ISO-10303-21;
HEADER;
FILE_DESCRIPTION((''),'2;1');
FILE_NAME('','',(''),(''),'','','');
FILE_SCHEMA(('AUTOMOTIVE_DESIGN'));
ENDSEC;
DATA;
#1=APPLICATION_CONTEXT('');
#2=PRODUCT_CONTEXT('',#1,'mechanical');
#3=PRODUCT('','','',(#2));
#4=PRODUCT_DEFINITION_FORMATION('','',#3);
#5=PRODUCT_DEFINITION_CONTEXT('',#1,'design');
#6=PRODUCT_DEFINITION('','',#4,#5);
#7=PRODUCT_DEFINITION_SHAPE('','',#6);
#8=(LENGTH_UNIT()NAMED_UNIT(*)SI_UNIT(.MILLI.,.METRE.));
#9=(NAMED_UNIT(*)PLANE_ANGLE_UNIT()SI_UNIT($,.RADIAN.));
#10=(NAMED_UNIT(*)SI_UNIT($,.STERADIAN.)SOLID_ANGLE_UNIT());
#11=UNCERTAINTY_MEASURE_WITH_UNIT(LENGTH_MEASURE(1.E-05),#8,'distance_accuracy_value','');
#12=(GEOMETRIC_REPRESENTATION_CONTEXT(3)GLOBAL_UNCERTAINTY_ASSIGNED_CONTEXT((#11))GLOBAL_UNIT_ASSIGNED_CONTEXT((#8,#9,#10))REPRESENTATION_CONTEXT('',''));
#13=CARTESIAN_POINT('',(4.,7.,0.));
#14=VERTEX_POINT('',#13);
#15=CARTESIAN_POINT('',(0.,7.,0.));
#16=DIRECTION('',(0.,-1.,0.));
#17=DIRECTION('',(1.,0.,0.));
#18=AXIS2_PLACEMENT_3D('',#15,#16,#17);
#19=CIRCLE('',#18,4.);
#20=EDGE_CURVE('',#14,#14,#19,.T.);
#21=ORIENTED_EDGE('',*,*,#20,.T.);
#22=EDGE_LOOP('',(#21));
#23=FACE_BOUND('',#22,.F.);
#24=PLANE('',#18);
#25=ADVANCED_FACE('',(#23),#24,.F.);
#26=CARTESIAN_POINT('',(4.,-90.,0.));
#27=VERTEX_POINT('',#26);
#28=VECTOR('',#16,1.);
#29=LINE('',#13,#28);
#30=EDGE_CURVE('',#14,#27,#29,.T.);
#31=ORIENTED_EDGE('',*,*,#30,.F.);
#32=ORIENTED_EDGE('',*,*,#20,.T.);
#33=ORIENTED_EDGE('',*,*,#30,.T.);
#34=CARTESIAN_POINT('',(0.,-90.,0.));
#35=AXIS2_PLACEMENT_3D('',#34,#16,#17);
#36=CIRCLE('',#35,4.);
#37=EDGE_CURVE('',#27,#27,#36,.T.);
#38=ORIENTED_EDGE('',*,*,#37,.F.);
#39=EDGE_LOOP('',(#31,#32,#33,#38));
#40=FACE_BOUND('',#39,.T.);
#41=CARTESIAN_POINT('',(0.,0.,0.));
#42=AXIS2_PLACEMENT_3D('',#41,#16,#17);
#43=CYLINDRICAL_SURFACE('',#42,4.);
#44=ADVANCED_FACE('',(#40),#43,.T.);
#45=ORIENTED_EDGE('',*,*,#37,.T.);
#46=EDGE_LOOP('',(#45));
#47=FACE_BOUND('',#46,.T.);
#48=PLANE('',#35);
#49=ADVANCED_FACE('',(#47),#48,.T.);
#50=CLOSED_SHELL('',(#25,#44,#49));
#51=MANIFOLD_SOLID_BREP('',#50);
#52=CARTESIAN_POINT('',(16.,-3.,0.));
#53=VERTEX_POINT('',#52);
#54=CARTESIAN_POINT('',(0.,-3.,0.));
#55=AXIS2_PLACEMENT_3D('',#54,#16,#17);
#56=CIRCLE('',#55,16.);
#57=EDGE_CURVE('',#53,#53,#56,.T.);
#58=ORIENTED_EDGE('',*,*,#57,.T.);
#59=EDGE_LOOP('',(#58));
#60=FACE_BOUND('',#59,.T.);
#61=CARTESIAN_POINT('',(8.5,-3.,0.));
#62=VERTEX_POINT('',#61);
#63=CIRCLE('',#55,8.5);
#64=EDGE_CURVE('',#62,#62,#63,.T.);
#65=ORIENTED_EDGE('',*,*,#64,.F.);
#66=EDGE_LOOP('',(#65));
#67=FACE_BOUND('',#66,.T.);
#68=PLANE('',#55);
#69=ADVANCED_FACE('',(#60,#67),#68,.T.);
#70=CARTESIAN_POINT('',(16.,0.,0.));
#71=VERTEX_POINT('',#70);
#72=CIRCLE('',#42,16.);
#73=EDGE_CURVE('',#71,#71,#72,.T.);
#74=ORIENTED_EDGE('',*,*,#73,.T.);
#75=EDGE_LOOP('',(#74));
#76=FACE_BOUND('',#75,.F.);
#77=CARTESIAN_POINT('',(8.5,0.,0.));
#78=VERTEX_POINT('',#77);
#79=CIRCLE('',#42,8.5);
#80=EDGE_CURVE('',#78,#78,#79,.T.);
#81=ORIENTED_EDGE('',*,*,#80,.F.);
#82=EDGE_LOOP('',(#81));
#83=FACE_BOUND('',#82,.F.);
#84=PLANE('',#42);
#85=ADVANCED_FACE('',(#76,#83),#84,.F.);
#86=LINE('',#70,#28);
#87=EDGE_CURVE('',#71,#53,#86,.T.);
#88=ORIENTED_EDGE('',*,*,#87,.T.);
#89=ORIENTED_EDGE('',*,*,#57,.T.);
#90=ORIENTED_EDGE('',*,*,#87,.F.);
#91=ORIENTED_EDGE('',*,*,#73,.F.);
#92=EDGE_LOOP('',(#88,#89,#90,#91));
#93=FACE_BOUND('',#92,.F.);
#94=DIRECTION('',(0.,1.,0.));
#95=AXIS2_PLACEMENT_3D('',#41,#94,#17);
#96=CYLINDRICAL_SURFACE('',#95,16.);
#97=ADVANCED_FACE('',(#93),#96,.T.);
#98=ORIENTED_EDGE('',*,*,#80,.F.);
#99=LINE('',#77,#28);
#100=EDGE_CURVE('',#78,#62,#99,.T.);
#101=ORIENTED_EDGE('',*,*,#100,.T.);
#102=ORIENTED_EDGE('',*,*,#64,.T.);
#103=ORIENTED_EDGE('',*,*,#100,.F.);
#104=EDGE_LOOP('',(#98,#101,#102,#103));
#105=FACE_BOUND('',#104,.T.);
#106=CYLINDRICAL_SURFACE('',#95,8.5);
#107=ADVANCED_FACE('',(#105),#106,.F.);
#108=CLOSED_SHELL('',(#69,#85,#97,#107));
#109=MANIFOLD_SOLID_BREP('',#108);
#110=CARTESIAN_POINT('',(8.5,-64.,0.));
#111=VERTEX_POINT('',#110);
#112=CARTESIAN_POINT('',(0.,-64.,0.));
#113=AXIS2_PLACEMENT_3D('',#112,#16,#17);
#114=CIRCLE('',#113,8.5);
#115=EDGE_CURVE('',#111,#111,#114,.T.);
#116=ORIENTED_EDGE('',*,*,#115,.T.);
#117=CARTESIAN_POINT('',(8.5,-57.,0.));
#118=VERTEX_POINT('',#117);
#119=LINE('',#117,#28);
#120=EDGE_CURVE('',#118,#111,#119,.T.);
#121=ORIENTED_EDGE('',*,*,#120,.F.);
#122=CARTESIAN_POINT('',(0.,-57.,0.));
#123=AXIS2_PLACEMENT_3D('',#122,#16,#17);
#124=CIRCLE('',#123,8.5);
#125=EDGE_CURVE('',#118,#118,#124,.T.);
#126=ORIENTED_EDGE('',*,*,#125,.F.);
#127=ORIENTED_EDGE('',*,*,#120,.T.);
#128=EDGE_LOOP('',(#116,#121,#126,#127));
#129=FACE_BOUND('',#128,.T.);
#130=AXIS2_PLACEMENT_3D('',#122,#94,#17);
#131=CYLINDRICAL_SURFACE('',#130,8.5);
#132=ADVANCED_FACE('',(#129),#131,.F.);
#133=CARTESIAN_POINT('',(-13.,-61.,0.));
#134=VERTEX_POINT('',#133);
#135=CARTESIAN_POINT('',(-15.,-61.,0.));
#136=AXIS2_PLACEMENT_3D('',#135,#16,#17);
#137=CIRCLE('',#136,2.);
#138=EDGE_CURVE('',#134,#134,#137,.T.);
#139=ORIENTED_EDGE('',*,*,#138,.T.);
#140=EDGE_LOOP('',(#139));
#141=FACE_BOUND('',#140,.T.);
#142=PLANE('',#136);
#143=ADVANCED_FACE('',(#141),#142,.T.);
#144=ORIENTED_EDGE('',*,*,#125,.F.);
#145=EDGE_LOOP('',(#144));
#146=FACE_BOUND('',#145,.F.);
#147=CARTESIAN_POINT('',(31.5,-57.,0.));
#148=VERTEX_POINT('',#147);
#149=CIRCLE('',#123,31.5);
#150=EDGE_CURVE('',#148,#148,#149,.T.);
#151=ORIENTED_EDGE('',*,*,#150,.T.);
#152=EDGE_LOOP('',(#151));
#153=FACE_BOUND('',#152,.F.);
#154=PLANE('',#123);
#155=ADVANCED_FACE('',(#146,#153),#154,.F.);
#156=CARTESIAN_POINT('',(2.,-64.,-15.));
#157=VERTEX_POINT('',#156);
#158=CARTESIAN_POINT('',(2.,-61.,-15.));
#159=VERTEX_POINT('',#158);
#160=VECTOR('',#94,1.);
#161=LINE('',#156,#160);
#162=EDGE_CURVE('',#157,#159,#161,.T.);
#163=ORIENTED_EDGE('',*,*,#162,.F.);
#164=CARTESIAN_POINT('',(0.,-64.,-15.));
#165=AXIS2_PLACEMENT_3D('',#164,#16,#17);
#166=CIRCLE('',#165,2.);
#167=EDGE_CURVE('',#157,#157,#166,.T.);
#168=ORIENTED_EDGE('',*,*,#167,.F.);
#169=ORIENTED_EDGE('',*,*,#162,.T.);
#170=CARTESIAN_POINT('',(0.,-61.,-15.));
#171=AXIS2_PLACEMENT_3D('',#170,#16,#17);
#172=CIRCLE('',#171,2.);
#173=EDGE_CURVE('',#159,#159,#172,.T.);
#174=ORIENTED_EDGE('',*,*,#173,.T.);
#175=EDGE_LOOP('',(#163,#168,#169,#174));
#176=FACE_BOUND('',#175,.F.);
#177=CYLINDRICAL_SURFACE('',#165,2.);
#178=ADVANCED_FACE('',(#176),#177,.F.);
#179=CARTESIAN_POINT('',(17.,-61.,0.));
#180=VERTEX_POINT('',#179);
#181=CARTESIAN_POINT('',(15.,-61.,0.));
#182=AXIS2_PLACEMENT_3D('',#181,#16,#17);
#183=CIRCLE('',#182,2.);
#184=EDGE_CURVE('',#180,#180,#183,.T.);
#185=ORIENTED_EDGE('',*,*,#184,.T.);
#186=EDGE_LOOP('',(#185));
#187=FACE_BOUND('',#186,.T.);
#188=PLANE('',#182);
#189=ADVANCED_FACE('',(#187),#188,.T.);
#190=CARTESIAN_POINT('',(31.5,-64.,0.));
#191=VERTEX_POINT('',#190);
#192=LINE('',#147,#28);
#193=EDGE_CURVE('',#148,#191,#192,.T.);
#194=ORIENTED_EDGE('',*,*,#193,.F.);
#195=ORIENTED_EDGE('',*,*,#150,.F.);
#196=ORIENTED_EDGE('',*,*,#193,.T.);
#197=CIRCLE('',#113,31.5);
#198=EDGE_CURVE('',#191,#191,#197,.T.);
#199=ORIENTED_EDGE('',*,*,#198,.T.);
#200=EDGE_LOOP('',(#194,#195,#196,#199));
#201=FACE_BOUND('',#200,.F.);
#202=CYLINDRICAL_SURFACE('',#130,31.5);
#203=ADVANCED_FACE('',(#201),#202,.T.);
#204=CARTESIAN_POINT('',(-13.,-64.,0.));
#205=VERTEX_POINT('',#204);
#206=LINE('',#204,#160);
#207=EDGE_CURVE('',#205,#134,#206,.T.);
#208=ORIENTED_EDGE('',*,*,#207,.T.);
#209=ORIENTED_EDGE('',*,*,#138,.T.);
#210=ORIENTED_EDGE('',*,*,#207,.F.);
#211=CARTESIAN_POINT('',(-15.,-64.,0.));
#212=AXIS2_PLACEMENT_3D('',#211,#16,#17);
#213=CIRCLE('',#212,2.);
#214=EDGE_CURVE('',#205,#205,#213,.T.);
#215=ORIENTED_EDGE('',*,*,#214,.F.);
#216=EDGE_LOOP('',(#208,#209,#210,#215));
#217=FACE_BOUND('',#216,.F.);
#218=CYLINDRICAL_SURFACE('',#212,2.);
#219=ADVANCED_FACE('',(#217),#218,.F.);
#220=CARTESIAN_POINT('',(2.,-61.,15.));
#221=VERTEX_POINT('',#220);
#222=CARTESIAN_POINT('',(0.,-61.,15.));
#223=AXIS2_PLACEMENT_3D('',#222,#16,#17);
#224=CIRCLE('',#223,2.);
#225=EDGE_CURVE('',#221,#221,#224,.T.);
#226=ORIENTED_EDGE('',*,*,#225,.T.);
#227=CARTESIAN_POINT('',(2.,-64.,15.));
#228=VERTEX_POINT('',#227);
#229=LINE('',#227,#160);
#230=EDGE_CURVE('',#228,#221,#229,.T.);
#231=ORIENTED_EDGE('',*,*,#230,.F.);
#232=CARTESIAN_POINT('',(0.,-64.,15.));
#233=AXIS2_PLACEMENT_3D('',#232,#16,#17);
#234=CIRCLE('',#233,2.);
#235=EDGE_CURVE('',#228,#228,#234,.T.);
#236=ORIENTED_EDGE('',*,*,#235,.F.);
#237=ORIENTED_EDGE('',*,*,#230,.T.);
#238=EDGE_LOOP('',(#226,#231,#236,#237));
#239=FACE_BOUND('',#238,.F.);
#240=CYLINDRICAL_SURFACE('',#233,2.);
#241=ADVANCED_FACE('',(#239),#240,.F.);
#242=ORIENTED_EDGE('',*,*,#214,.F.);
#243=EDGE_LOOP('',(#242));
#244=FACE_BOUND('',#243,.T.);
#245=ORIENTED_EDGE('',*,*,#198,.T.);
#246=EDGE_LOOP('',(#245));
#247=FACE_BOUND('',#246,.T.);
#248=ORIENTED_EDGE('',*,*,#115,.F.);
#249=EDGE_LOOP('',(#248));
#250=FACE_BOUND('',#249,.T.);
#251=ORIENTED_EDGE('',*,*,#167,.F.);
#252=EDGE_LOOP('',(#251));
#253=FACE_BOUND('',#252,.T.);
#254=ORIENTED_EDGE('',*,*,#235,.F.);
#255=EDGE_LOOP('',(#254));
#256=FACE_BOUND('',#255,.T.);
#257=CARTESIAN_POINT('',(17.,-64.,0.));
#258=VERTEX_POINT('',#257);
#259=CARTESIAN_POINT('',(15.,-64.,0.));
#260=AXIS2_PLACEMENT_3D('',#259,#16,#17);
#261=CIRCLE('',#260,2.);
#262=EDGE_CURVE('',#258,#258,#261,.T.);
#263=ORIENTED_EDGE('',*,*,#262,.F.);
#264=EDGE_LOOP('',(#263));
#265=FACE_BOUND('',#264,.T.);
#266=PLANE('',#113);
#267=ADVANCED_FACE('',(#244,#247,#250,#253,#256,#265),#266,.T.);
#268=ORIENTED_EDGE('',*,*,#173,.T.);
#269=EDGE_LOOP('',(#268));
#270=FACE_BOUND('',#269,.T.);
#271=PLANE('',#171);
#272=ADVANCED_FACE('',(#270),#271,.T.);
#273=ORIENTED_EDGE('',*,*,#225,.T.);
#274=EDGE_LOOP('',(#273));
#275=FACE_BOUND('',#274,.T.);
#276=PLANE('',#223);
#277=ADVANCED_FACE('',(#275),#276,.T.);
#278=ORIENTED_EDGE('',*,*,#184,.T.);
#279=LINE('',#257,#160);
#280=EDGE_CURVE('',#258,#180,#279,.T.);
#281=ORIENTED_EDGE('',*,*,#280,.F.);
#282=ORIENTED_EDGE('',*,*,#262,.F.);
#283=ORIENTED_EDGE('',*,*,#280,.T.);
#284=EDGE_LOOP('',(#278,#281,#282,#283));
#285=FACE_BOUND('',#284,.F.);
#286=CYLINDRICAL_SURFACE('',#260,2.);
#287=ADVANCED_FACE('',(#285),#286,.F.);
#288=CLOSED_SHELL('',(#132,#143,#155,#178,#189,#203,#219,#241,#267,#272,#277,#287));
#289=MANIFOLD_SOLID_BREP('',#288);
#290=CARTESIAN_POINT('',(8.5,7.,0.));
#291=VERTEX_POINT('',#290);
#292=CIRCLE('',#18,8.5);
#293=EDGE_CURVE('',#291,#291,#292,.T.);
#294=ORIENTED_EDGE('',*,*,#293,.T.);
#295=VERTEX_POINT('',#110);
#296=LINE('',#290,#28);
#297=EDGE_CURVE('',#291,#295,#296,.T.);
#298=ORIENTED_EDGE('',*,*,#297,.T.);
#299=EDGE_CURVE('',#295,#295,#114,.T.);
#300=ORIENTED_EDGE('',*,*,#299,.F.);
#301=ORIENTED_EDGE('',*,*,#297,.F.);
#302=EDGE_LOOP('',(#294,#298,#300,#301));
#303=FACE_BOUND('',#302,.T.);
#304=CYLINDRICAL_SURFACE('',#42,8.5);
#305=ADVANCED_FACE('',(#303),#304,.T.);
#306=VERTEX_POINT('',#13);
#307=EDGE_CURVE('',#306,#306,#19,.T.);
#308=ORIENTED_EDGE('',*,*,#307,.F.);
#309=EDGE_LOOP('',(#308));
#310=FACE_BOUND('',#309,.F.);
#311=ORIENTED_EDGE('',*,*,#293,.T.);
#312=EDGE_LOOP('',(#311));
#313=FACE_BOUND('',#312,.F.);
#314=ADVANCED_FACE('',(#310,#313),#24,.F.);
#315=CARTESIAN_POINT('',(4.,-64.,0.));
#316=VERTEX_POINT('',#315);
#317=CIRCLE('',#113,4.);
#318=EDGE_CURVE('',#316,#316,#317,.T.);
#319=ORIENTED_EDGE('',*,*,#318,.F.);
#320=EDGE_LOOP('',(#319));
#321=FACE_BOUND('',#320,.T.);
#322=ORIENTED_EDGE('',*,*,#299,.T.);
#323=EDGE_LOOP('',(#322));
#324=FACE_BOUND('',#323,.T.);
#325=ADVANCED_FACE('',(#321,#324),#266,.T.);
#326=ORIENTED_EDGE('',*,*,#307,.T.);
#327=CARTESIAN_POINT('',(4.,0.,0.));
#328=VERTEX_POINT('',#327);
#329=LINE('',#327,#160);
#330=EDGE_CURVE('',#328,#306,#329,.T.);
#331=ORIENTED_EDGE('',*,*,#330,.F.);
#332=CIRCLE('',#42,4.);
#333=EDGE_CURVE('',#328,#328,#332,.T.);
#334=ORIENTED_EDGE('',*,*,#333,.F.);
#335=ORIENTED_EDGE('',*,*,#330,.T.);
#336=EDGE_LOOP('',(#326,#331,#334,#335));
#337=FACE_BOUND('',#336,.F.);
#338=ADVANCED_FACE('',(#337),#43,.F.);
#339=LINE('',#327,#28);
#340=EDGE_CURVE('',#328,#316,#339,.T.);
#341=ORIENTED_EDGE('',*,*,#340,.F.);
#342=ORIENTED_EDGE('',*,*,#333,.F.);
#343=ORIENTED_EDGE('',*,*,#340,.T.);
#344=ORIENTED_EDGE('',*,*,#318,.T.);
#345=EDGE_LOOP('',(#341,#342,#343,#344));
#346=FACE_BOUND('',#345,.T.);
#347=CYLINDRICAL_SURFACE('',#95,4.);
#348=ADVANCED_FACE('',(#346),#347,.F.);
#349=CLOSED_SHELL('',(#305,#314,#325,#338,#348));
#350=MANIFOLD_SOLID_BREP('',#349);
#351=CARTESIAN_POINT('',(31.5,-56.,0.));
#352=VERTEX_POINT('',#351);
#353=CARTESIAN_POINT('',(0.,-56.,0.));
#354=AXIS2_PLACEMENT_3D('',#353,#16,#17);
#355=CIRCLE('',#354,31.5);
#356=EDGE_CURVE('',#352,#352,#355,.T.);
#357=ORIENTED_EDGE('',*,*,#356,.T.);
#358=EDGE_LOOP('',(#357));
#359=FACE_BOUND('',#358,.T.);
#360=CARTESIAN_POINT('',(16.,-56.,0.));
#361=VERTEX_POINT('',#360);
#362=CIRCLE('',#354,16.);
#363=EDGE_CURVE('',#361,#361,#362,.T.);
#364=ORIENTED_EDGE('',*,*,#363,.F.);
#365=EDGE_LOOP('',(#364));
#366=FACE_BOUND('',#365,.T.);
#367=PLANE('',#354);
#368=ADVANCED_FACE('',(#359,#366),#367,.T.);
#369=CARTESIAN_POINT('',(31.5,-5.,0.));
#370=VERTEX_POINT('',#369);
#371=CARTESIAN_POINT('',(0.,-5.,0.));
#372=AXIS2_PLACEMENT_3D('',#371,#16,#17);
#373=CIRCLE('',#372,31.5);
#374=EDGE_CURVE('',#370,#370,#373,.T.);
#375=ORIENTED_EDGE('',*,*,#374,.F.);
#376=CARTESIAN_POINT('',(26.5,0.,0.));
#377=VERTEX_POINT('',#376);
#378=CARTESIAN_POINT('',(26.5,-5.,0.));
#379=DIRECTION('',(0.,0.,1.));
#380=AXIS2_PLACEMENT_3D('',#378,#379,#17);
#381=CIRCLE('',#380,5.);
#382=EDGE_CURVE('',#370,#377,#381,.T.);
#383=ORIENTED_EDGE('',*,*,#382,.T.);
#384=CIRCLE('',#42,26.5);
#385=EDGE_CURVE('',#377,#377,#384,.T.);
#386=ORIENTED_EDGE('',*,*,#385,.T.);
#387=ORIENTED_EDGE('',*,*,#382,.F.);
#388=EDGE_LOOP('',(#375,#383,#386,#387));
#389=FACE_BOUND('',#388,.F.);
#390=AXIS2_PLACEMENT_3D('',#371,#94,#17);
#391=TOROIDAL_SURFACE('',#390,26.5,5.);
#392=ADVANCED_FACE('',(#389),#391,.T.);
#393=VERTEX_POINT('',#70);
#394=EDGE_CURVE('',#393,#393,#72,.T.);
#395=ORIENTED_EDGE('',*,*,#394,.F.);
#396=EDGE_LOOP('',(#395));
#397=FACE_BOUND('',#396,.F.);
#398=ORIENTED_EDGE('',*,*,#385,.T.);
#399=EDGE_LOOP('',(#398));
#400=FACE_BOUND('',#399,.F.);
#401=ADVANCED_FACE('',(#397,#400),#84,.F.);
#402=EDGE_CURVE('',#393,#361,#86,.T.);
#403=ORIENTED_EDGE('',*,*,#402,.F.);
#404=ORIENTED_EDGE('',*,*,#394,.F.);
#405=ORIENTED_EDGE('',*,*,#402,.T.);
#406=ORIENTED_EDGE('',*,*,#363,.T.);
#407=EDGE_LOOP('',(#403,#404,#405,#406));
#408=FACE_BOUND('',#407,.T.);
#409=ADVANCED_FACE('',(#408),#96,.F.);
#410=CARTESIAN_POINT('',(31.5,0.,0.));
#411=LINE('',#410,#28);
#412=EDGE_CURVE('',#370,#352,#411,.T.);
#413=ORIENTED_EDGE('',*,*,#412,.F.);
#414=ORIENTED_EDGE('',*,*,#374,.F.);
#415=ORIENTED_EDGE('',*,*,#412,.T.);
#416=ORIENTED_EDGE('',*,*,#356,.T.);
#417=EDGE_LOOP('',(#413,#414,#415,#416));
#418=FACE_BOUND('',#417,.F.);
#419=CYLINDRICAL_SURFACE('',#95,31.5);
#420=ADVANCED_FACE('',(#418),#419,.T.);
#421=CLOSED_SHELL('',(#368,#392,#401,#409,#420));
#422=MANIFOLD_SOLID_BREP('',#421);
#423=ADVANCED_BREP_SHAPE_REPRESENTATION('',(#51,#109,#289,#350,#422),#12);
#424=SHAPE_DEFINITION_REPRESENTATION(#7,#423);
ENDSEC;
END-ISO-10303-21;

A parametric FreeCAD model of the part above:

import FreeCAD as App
import Part
import Sketcher

V = App.Vector
Q = App.Units.Quantity


def edges_at(feature, points):
    """Names of the edges that pass closest to the given points."""
    edges = feature.Shape.Edges
    near = lambda p: min(range(len(edges)), key=lambda i: edges[i].distToShape(Part.Vertex(*p))[0])
    return sorted({f"Edge{near(p) + 1}" for p in points})

doc = App.newDocument("Part")
body = doc.addObject("PartDesign::Body", "Body")

# Sketch on XZ plane
sketch1 = body.newObject("Sketcher::SketchObject", "Sketch")
sketch1.AttachmentSupport = (doc.getObject("XZ_Plane"), [""])
sketch1.MapMode = "FlatFace"
sketch1.addGeometry([
    Part.Circle(V(0, 0, 0), V(0, 0, 1), 32),
    Part.Circle(V(0, 0, 0), V(0, 0, 1), 16),
], False)
sketch1.addConstraint([
    Sketcher.Constraint("Coincident", 0, 3, -1, 1),
    Sketcher.Constraint("Coincident", 1, 3, -1, 1),
    Sketcher.Constraint("Diameter", 0, Q("63 mm")),
    Sketcher.Constraint("Diameter", 1, Q("32 mm")),
])
pad1 = body.newObject("PartDesign::Pad", "Pad")
pad1.Profile = sketch1
pad1.Length = 56
doc.recompute()

fillet = body.newObject("PartDesign::Fillet", "Fillet")
fillet.Base = (pad1, edges_at(pad1, [(-31.5, 0, 0)]))
fillet.Radius = 5
body2 = doc.addObject("PartDesign::Body", "Body001")

# Sketch on XZ plane
sketch2 = body2.newObject("Sketcher::SketchObject", "Sketch001")
sketch2.AttachmentSupport = (doc.getObject("XZ_Plane001"), [""])
sketch2.MapMode = "FlatFace"
sketch2.addGeometry([
    Part.Circle(V(0, 0, 0), V(0, 0, 1), 8.5),
    Part.Circle(V(0, 0, 0), V(0, 0, 1), 4),
], False)
sketch2.addConstraint([
    Sketcher.Constraint("Coincident", 0, 3, -1, 1),
    Sketcher.Constraint("Coincident", 1, 3, -1, 1),
    Sketcher.Constraint("Diameter", 0, Q("17 mm")),
    Sketcher.Constraint("Diameter", 1, Q("8 mm")),
])
pad2 = body2.newObject("PartDesign::Pad", "Pad001")
pad2.Profile = sketch2
pad2.Type = "TwoLengths"
pad2.Length = 64
pad2.Length2 = 7
body3 = doc.addObject("PartDesign::Body", "Body002")

# Sketch on XZ plane
sketch3 = body3.newObject("Sketcher::SketchObject", "Sketch002")
sketch3.AttachmentSupport = (doc.getObject("XZ_Plane002"), [""])
sketch3.MapMode = "FlatFace"
sketch3.addGeometry(Part.Circle(V(0, 0, 0), V(0, 0, 1), 4), False)
sketch3.addConstraint([
    Sketcher.Constraint("Coincident", 0, 3, -1, 1),
    Sketcher.Constraint("Diameter", 0, Q("8 mm")),
])
pad3 = body3.newObject("PartDesign::Pad", "Pad002")
pad3.Profile = sketch3
pad3.Type = "TwoLengths"
pad3.Length = 90
pad3.Length2 = 7
body4 = doc.addObject("PartDesign::Body", "Body003")

# Sketch on XZ plane
sketch4 = body4.newObject("Sketcher::SketchObject", "Sketch003")
sketch4.AttachmentSupport = (doc.getObject("XZ_Plane003"), [""])
sketch4.MapMode = "FlatFace"
sketch4.addGeometry([
    Part.Circle(V(0, 0, 0), V(0, 0, 1), 16),
    Part.Circle(V(0, 0, 0), V(0, 0, 1), 8),
], False)
sketch4.addConstraint([
    Sketcher.Constraint("Coincident", 0, 3, -1, 1),
    Sketcher.Constraint("Coincident", 1, 3, -1, 1),
    Sketcher.Constraint("Diameter", 0, Q("32 mm")),
    Sketcher.Constraint("Diameter", 1, Q("17 mm")),
])
pad4 = body4.newObject("PartDesign::Pad", "Pad003")
pad4.Profile = sketch4
pad4.Length = 3
body5 = doc.addObject("PartDesign::Body", "Body004")

# Sketch on XZ plane
sketch5 = body5.newObject("Sketcher::SketchObject", "Sketch004")
sketch5.AttachmentSupport = (doc.getObject("XZ_Plane004"), [""])
sketch5.MapMode = "FlatFace"
sketch5.AttachmentOffset = App.Placement(V(0, 0, 57), App.Rotation())
sketch5.addGeometry([
    Part.Circle(V(0, 0, 0), V(0, 0, 1), 32),
    Part.Circle(V(0, 0, 0), V(0, 0, 1), 8),
], False)
sketch5.addConstraint([
    Sketcher.Constraint("Coincident", 0, 3, -1, 1),
    Sketcher.Constraint("Coincident", 1, 3, -1, 1),
    Sketcher.Constraint("Diameter", 0, Q("63 mm")),
    Sketcher.Constraint("Diameter", 1, Q("17 mm")),
])
pad5 = body5.newObject("PartDesign::Pad", "Pad004")
pad5.Profile = sketch5
pad5.Length = 7

# Sketch on XZ plane
sketch6 = body5.newObject("Sketcher::SketchObject", "Sketch005")
sketch6.AttachmentSupport = (doc.getObject("XZ_Plane004"), [""])
sketch6.MapMode = "FlatFace"
sketch6.AttachmentOffset = App.Placement(V(0, 0, 64), App.Rotation())
sketch6.addGeometry([
    Part.Circle(V(0, 15, 0), V(0, 0, 1), 2),
    Part.Circle(V(-15, 0, 0), V(0, 0, 1), 2),
    Part.Circle(V(0, -15, 0), V(0, 0, 1), 2),
    Part.Circle(V(15, 0, 0), V(0, 0, 1), 2),
], False)
sketch6.addConstraint([
    Sketcher.Constraint("Equal", 0, 1),
    Sketcher.Constraint("Equal", 1, 2),
    Sketcher.Constraint("Equal", 2, 3),
    Sketcher.Constraint("Symmetric", 0, 3, 2, 3, -1, 1),
    Sketcher.Constraint("Symmetric", 1, 3, 3, 3, -1, 1),
    Sketcher.Constraint("PointOnObject", 0, 3, -2),
    Sketcher.Constraint("PointOnObject", 1, 3, -1),
    Sketcher.Constraint("Diameter", 0, Q("4 mm")),
    Sketcher.Constraint("DistanceY", -1, 1, 0, 3, Q("15 mm")),
    Sketcher.Constraint("DistanceX", 1, 3, -1, 1, Q("15 mm")),
])
pocket1 = body5.newObject("PartDesign::Pocket", "Pocket")
pocket1.Profile = sketch6
pocket1.Length = 3

doc.recompute()
